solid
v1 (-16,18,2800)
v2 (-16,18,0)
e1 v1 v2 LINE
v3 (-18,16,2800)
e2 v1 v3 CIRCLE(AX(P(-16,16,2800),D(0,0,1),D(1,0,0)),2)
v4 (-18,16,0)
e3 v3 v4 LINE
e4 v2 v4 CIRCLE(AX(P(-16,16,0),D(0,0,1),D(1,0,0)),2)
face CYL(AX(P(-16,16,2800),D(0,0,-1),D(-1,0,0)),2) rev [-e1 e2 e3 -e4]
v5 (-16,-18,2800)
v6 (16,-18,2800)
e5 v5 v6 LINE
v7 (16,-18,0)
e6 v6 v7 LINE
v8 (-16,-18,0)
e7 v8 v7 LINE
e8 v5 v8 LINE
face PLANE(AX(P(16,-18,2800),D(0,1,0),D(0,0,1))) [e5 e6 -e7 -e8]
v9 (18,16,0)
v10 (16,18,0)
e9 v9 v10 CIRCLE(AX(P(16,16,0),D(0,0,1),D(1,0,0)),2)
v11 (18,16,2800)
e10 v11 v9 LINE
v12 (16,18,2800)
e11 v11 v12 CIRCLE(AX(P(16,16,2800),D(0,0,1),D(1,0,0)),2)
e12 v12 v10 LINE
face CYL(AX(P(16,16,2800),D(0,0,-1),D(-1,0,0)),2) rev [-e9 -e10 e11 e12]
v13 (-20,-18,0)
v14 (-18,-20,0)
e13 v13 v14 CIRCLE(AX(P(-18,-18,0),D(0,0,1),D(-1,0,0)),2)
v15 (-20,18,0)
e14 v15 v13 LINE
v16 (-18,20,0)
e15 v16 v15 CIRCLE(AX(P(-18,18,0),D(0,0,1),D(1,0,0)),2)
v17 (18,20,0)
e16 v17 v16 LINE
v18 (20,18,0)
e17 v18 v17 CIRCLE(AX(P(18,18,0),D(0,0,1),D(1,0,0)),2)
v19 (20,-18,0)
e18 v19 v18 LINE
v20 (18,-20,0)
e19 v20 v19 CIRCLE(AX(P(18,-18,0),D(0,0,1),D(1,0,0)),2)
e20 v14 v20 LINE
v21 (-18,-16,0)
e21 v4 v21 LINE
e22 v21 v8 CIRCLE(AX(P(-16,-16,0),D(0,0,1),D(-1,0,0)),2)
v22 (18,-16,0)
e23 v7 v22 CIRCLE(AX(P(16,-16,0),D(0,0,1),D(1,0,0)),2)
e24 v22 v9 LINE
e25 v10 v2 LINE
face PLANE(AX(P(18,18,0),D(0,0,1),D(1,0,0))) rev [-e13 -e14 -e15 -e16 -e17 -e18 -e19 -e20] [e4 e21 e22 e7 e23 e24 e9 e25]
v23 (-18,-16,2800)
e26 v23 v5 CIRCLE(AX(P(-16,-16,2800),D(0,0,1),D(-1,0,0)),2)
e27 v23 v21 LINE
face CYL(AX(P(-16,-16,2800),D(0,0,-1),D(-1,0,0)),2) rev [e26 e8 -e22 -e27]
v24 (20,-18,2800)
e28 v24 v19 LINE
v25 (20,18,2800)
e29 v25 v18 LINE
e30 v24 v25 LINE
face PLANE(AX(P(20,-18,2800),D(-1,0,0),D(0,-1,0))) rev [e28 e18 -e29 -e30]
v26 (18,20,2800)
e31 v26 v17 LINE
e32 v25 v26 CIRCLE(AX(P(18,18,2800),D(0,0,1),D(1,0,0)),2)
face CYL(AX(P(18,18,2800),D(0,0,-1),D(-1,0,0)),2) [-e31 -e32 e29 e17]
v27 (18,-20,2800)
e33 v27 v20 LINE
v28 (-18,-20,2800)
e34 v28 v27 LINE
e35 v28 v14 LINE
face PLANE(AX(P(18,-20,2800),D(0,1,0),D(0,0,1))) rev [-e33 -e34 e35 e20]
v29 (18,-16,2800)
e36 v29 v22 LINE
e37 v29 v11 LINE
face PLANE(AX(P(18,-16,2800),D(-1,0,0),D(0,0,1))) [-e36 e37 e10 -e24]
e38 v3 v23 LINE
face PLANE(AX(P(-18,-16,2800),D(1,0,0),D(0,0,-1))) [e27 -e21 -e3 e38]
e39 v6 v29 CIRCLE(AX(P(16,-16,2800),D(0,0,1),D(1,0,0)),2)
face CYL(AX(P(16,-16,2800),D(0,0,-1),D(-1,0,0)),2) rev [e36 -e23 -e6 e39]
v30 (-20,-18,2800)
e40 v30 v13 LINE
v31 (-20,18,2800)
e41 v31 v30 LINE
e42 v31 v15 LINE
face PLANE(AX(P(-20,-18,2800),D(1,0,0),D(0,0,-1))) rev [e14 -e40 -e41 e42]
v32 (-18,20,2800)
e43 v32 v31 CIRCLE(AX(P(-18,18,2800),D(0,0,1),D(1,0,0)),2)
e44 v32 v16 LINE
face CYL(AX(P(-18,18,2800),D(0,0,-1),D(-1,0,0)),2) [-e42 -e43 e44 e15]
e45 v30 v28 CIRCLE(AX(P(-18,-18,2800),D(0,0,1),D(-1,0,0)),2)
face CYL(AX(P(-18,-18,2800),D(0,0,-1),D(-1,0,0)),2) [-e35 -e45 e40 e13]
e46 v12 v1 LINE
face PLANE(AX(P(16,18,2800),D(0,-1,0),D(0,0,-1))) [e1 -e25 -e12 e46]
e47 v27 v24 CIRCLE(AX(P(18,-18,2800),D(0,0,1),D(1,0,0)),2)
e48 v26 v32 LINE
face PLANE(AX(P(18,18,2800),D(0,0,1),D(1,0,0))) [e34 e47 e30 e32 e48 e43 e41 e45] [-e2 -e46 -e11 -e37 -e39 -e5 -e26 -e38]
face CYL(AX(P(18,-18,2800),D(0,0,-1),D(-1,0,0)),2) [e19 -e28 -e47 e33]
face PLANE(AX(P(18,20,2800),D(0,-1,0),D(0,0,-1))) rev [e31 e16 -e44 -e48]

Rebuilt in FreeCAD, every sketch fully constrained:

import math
import FreeCAD as App
import Part
import Sketcher
Q = App.Units.Quantity

doc = App.newDocument("Part")
body = doc.addObject("PartDesign::Body", "Body")

# Sketch on XY plane
sketch1 = doc.addObject("Sketcher::SketchObject", "Sketch")
body.addObject(sketch1)
sketch1.AttachmentSupport = (doc.XY_Plane, [""])
sketch1.MapMode = "FlatFace"
sketch1.addGeometry(Part.LineSegment(App.Vector(-18, -20, 0), App.Vector(18, -20, 0)), False)
sketch1.addGeometry(Part.ArcOfCircle(Part.Circle(App.Vector(18, -18, 0), App.Vector(0, 0, 1), 2), math.radians(-90), math.radians(0)), False)
sketch1.addGeometry(Part.LineSegment(App.Vector(20, -18, 0), App.Vector(20, 18, 0)), False)
sketch1.addGeometry(Part.ArcOfCircle(Part.Circle(App.Vector(18, 18, 0), App.Vector(0, 0, 1), 2), math.radians(0), math.radians(90)), False)
sketch1.addGeometry(Part.LineSegment(App.Vector(18, 20, 0), App.Vector(-18, 20, 0)), False)
sketch1.addGeometry(Part.ArcOfCircle(Part.Circle(App.Vector(-18, 18, 0), App.Vector(0, 0, 1), 2), math.radians(90), math.radians(180)), False)
sketch1.addGeometry(Part.LineSegment(App.Vector(-20, 18, 0), App.Vector(-20, -18, 0)), False)
sketch1.addGeometry(Part.ArcOfCircle(Part.Circle(App.Vector(-18, -18, 0), App.Vector(0, 0, 1), 2), math.radians(-180), math.radians(-90)), False)
sketch1.addGeometry(Part.LineSegment(App.Vector(16, -18, 0), App.Vector(-16, -18, 0)), False)
sketch1.addGeometry(Part.ArcOfCircle(Part.Circle(App.Vector(-16, -16, 0), App.Vector(0, 0, 1), 2), math.radians(-180), math.radians(-90)), False)
sketch1.addGeometry(Part.LineSegment(App.Vector(-18, -16, 0), App.Vector(-18, 16, 0)), False)
sketch1.addGeometry(Part.ArcOfCircle(Part.Circle(App.Vector(-16, 16, 0), App.Vector(0, 0, 1), 2), math.radians(90), math.radians(180)), False)
sketch1.addGeometry(Part.LineSegment(App.Vector(-16, 18, 0), App.Vector(16, 18, 0)), False)
sketch1.addGeometry(Part.ArcOfCircle(Part.Circle(App.Vector(16, 16, 0), App.Vector(0, 0, 1), 2), math.radians(0), math.radians(90)), False)
sketch1.addGeometry(Part.LineSegment(App.Vector(18, 16, 0), App.Vector(18, -16, 0)), False)
sketch1.addGeometry(Part.ArcOfCircle(Part.Circle(App.Vector(16, -16, 0), App.Vector(0, 0, 1), 2), math.radians(-90), math.radians(0)), False)
sketch1.addConstraint(Sketcher.Constraint("Tangent", 0, 2, 1, 1))
sketch1.addConstraint(Sketcher.Constraint("Tangent", 1, 2, 2, 1))
sketch1.addConstraint(Sketcher.Constraint("Tangent", 2, 2, 3, 1))
sketch1.addConstraint(Sketcher.Constraint("Tangent", 3, 2, 4, 1))
sketch1.addConstraint(Sketcher.Constraint("Tangent", 4, 2, 5, 1))
sketch1.addConstraint(Sketcher.Constraint("Tangent", 5, 2, 6, 1))
sketch1.addConstraint(Sketcher.Constraint("Tangent", 6, 2, 7, 1))
sketch1.addConstraint(Sketcher.Constraint("Tangent", 7, 2, 0, 1))
sketch1.addConstraint(Sketcher.Constraint("Tangent", 8, 2, 9, 2))
sketch1.addConstraint(Sketcher.Constraint("Tangent", 9, 1, 10, 1))
sketch1.addConstraint(Sketcher.Constraint("Tangent", 10, 2, 11, 2))
sketch1.addConstraint(Sketcher.Constraint("Tangent", 11, 1, 12, 1))
sketch1.addConstraint(Sketcher.Constraint("Tangent", 12, 2, 13, 2))
sketch1.addConstraint(Sketcher.Constraint("Tangent", 13, 1, 14, 1))
sketch1.addConstraint(Sketcher.Constraint("Tangent", 14, 2, 15, 2))
sketch1.addConstraint(Sketcher.Constraint("Tangent", 15, 1, 8, 1))
sketch1.addConstraint(Sketcher.Constraint("Horizontal", 0))
sketch1.addConstraint(Sketcher.Constraint("Vertical", 2))
sketch1.addConstraint(Sketcher.Constraint("Horizontal", 4))
sketch1.addConstraint(Sketcher.Constraint("Vertical", 6))
sketch1.addConstraint(Sketcher.Constraint("Horizontal", 8))
sketch1.addConstraint(Sketcher.Constraint("Vertical", 10))
sketch1.addConstraint(Sketcher.Constraint("Horizontal", 12))
sketch1.addConstraint(Sketcher.Constraint("Vertical", 14))
sketch1.addConstraint(Sketcher.Constraint("Equal", 1, 3))
sketch1.addConstraint(Sketcher.Constraint("Equal", 3, 5))
sketch1.addConstraint(Sketcher.Constraint("Equal", 5, 7))
sketch1.addConstraint(Sketcher.Constraint("Equal", 7, 9))
sketch1.addConstraint(Sketcher.Constraint("Equal", 9, 11))
sketch1.addConstraint(Sketcher.Constraint("Equal", 11, 13))
sketch1.addConstraint(Sketcher.Constraint("Equal", 13, 15))
sketch1.addConstraint(Sketcher.Constraint("Symmetric", 1, 3, 5, 3, -1, 1))
sketch1.addConstraint(Sketcher.Constraint("Symmetric", 9, 3, 13, 3, -1, 1))
sketch1.addConstraint(Sketcher.Constraint("Horizontal", 6, 2, 8, 2))
sketch1.addConstraint(Sketcher.Constraint("Vertical", 7, 2, 9, 1))
sketch1.addConstraint(Sketcher.Constraint("Equal", 4, 2))
sketch1.addConstraint(Sketcher.Constraint("Radius", 1, Q("2 mm")))
sketch1.addConstraint(Sketcher.Constraint("DistanceX", 0, 1, 0, 2, Q("36 mm")))
pad1 = doc.addObject("PartDesign::Pad", "Pad")
body.addObject(pad1)
pad1.Profile = sketch1
pad1.Length = 2800

doc.recompute()
